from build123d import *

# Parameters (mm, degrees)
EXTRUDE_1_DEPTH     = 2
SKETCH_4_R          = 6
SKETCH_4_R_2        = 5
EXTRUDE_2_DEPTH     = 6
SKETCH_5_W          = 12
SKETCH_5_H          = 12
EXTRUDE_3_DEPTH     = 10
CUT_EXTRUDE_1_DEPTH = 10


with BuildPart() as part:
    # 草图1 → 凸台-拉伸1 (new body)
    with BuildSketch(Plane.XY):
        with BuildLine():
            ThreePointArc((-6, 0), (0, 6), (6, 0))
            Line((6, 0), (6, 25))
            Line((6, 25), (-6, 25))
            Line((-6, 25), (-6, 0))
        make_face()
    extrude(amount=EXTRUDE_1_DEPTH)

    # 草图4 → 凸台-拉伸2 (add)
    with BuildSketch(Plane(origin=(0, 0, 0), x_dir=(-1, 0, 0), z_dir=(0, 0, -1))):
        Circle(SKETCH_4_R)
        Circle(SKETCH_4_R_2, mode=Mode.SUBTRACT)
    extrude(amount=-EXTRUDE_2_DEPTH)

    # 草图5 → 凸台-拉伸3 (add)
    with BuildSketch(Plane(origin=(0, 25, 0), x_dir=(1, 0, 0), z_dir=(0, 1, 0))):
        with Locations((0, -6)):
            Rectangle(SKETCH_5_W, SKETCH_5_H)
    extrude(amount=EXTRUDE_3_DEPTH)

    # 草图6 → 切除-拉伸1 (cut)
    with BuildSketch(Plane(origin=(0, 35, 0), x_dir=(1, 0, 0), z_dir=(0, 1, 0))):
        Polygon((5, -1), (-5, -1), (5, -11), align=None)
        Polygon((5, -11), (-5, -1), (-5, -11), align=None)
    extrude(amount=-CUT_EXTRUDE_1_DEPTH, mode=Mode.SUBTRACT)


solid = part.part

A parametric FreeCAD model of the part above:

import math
import FreeCAD as App
import Part
import Sketcher
from FreeCAD import Vector


def add_polygon(sketch, points):
    """Adds a closed chain of lines whose ends are joined by coincident constraints."""
    first, n = sketch.GeometryCount, len(points)
    for a, b in zip(points, points[1:] + points[:1]):
        sketch.addGeometry(Part.LineSegment(App.Vector(*a, 0), App.Vector(*b, 0)), False)
    for i in range(n):
        sketch.addConstraint(Sketcher.Constraint("Coincident", first + i, 2, first + (i + 1) % n, 1))

doc = App.newDocument("Part")
params = doc.addObject("Spreadsheet::Sheet", "Params")
for row, (alias, value) in enumerate([
    ("sketch1_radius", "6 mm"),
    ("sketch1_height", "25 mm"),
    ("pad1_length", "2 mm"),
    ("sketch2_diameter", "12 mm"),
    ("sketch2_diameter2", "10 mm"),
    ("pad2_length", "6 mm"),
    ("sketch3_width", "12 mm"),
    ("pad3_length", "10 mm"),
    ("sketch4_width", "10 mm"),
    ("pocket1_length", "10 mm"),
], start=1):
    params.set(f"A{row}", alias)
    params.set(f"B{row}", "=" + value)
    params.setAlias(f"B{row}", alias)

body = doc.addObject("PartDesign::Body", "Body")

sketch1 = doc.addObject("Sketcher::SketchObject", "Sketch")
body.addObject(sketch1)
sketch1.AttachmentSupport = (doc.XY_Plane, [""])
sketch1.MapMode = "FlatFace"
sketch1.addGeometry([
    Part.ArcOfCircle(Part.Circle(Vector(0, 0, 0), Vector(0, 0, 1), 6), math.radians(0), math.radians(180)),
    Part.LineSegment(Vector(6, 0, 0), Vector(6, 25, 0)),
    Part.LineSegment(Vector(6, 25, 0), Vector(-6, 25, 0)),
    Part.LineSegment(Vector(-6, 25, 0), Vector(-6, 0, 0)),
], False)
sketch1.addConstraint([
    Sketcher.Constraint("Tangent", 0, 1, 1, 1),
    Sketcher.Constraint("Coincident", 1, 2, 2, 1),
    Sketcher.Constraint("Coincident", 2, 2, 3, 1),
    Sketcher.Constraint("Tangent", 3, 2, 0, 2),
    Sketcher.Constraint("Vertical", 1),
    Sketcher.Constraint("Horizontal", 2),
    Sketcher.Constraint("Vertical", 3),
    Sketcher.Constraint("Coincident", 0, 3, -1, 1),
    Sketcher.Constraint("Radius", 0, 6.0),
    Sketcher.Constraint("DistanceY", 1, 1, 1, 2, 25.0),
])
sketch1.setExpression("Constraints[8]", "Params.sketch1_radius")
sketch1.setExpression("Constraints[9]", "Params.sketch1_height")
pad1 = doc.addObject("PartDesign::Pad", "Pad")
body.addObject(pad1)
pad1.Profile = sketch1
pad1.setExpression("Length", "Params.pad1_length")

sketch2 = doc.addObject("Sketcher::SketchObject", "Sketch001")
body.addObject(sketch2)
sketch2.AttachmentSupport = (doc.XY_Plane, [""])
sketch2.MapMode = "FlatFace"
sketch2.addGeometry([
    Part.Circle(Vector(0, 0, 0), Vector(0, 0, 1), 6),
    Part.Circle(Vector(0, 0, 0), Vector(0, 0, 1), 5),
], False)
sketch2.addConstraint([
    Sketcher.Constraint("Coincident", 0, 3, -1, 1),
    Sketcher.Constraint("Coincident", 1, 3, -1, 1),
    Sketcher.Constraint("Diameter", 0, 12.0),
    Sketcher.Constraint("Diameter", 1, 10.0),
])
sketch2.setExpression("Constraints[2]", "Params.sketch2_diameter")
sketch2.setExpression("Constraints[3]", "Params.sketch2_diameter2")
pad2 = doc.addObject("PartDesign::Pad", "Pad001")
body.addObject(pad2)
pad2.Profile = sketch2
pad2.setExpression("Length", "Params.pad2_length")

sketch3 = doc.addObject("Sketcher::SketchObject", "Sketch002")
body.addObject(sketch3)
sketch3.AttachmentSupport = (doc.XZ_Plane, [""])
sketch3.MapMode = "FlatFace"
sketch3.AttachmentOffset = App.Placement(Vector(0, 0, -25), App.Rotation())
add_polygon(sketch3, [(-6, 0), (-6, 12), (6, 12), (6, 0)])
sketch3.addConstraint([
    Sketcher.Constraint("Vertical", 0),
    Sketcher.Constraint("Horizontal", 1),
    Sketcher.Constraint("Vertical", 2),
    Sketcher.Constraint("Horizontal", 3),
    Sketcher.Constraint("Symmetric", 2, 2, 3, 2, -1, 1),
    Sketcher.Constraint("Equal", 3, 0),
    Sketcher.Constraint("DistanceX", 1, 1, 1, 2, 12.0),
])
sketch3.setExpression("Constraints[10]", "Params.sketch3_width")
pad3 = doc.addObject("PartDesign::Pad", "Pad002")
body.addObject(pad3)
pad3.Profile = sketch3
pad3.setExpression("Length", "Params.pad3_length")
pad3.Reversed = True

sketch4 = doc.addObject("Sketcher::SketchObject", "Sketch003")
body.addObject(sketch4)
sketch4.AttachmentSupport = (doc.XZ_Plane, [""])
sketch4.MapMode = "FlatFace"
sketch4.AttachmentOffset = App.Placement(Vector(0, 0, -35), App.Rotation())
add_polygon(sketch4, [(5, 1), (-5, 1), (-5, 11), (5, 11)])
sketch4.addConstraint([
    Sketcher.Constraint("Horizontal", 0),
    Sketcher.Constraint("Vertical", 1),
    Sketcher.Constraint("Horizontal", 2),
    Sketcher.Constraint("Vertical", 3),
    Sketcher.Constraint("Equal", 2, 1),
    Sketcher.Constraint("DistanceX", 0, 2, 0, 1, 10.0),
    Sketcher.Constraint("DistanceX", 0, 2, -1, 1, 5.0),
    Sketcher.Constraint("DistanceY", -1, 1, 0, 2, 1.0),
])
sketch4.setExpression("Constraints[9]", "Params.sketch4_width")
pocket1 = doc.addObject("PartDesign::Pocket", "Pocket")
body.addObject(pocket1)
pocket1.Profile = sketch4
pocket1.setExpression("Length", "Params.pocket1_length")
pocket1.Reversed = True

doc.recompute()
